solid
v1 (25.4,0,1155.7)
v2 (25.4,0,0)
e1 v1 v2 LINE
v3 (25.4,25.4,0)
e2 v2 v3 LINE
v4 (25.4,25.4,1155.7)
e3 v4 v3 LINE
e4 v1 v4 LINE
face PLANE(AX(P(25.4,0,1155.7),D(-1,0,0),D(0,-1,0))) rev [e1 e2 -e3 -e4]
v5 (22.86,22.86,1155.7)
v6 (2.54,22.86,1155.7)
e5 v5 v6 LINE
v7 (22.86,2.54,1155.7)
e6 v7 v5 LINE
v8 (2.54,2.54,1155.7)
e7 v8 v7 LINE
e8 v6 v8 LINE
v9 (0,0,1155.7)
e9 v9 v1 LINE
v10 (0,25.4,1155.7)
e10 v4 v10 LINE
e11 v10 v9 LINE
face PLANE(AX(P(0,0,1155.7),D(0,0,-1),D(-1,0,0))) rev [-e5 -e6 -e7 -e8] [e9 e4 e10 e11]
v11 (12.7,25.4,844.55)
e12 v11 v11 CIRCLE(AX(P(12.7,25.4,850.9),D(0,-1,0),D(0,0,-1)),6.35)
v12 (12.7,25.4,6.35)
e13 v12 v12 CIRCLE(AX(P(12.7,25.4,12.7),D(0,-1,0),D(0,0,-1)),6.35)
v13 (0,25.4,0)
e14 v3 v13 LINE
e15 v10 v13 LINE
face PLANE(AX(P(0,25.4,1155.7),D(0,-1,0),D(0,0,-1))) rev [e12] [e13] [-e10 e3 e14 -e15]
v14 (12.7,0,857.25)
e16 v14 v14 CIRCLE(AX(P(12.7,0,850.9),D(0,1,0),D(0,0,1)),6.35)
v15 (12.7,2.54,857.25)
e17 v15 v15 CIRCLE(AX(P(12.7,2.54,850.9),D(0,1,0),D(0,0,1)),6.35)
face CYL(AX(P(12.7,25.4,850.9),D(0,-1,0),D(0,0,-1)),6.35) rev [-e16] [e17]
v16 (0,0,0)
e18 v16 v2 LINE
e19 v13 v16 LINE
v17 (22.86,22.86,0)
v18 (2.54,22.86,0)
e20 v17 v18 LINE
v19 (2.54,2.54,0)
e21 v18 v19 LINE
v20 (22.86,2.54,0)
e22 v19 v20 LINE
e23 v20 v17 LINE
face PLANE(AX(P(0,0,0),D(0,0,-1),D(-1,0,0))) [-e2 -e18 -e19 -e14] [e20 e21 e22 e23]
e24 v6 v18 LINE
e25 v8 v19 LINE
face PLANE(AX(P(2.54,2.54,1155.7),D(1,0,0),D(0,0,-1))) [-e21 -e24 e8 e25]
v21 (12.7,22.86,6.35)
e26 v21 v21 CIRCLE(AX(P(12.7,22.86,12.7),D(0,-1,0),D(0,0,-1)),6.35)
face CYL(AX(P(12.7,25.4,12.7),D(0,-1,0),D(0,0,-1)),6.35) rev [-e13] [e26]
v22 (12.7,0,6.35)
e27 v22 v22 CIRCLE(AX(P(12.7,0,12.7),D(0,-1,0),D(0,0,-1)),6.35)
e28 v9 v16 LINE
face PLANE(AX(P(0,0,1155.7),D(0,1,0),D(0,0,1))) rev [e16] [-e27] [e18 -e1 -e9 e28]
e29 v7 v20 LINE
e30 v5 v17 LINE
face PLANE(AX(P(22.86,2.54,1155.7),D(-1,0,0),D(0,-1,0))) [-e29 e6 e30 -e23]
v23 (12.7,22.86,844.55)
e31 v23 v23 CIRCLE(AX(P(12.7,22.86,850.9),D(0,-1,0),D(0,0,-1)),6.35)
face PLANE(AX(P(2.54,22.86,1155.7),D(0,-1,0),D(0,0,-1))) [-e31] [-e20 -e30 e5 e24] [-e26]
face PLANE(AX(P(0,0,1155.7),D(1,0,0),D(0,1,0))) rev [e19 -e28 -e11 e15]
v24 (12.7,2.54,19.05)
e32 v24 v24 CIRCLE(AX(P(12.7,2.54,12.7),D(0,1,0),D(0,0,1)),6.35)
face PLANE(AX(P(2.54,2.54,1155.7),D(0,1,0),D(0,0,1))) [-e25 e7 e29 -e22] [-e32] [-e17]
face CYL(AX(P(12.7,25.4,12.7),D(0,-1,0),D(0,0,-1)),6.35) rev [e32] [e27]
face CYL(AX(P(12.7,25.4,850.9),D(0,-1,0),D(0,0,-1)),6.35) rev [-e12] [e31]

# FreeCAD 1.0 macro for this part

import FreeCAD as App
import Part
import Sketcher
Q = App.Units.Quantity

doc = App.newDocument("Part")
params = doc.addObject("Spreadsheet::Sheet", "Params")
for row, (alias, value) in enumerate([
    ("sketch1_width", "1 in"),
    ("sketch1_width2", "0.8 in"),
    ("pad1_length", "45.5 in"),
    ("sketch2_diameter", "0.5 in"),
    ("sketch3_diameter", "0.5 in"),
], start=1):
    params.set(f"A{row}", alias)
    params.set(f"B{row}", "=" + value)
    params.setAlias(f"B{row}", alias)

body = doc.addObject("PartDesign::Body", "Body")

# Sketch on XY plane
sketch1 = body.newObject("Sketcher::SketchObject", "Sketch")
sketch1.AttachmentSupport = (doc.getObject("XY_Plane"), [""])
sketch1.MapMode = "FlatFace"
sketch1.addGeometry(Part.LineSegment(App.Vector(0, 25, 0), App.Vector(0, 0, 0)), False)
sketch1.addGeometry(Part.LineSegment(App.Vector(0, 0, 0), App.Vector(25, 0, 0)), False)
sketch1.addGeometry(Part.LineSegment(App.Vector(25, 0, 0), App.Vector(25, 25, 0)), False)
sketch1.addGeometry(Part.LineSegment(App.Vector(25, 25, 0), App.Vector(0, 25, 0)), False)
sketch1.addGeometry(Part.LineSegment(App.Vector(23, 3, 0), App.Vector(3, 3, 0)), False)
sketch1.addGeometry(Part.LineSegment(App.Vector(3, 3, 0), App.Vector(3, 23, 0)), False)
sketch1.addGeometry(Part.LineSegment(App.Vector(3, 23, 0), App.Vector(23, 23, 0)), False)
sketch1.addGeometry(Part.LineSegment(App.Vector(23, 23, 0), App.Vector(23, 3, 0)), False)
sketch1.addConstraint(Sketcher.Constraint("Coincident", 0, 2, 1, 1))
sketch1.addConstraint(Sketcher.Constraint("Coincident", 1, 2, 2, 1))
sketch1.addConstraint(Sketcher.Constraint("Coincident", 2, 2, 3, 1))
sketch1.addConstraint(Sketcher.Constraint("Coincident", 3, 2, 0, 1))
sketch1.addConstraint(Sketcher.Constraint("Coincident", 4, 2, 5, 1))
sketch1.addConstraint(Sketcher.Constraint("Coincident", 5, 2, 6, 1))
sketch1.addConstraint(Sketcher.Constraint("Coincident", 6, 2, 7, 1))
sketch1.addConstraint(Sketcher.Constraint("Coincident", 7, 2, 4, 1))
sketch1.addConstraint(Sketcher.Constraint("Vertical", 0))
sketch1.addConstraint(Sketcher.Constraint("Horizontal", 1))
sketch1.addConstraint(Sketcher.Constraint("Vertical", 2))
sketch1.addConstraint(Sketcher.Constraint("Horizontal", 3))
sketch1.addConstraint(Sketcher.Constraint("Horizontal", 4))
sketch1.addConstraint(Sketcher.Constraint("Vertical", 5))
sketch1.addConstraint(Sketcher.Constraint("Horizontal", 6))
sketch1.addConstraint(Sketcher.Constraint("Vertical", 7))
sketch1.addConstraint(Sketcher.Constraint("Coincident", 0, 2, -1, 1))
sketch1.addConstraint(Sketcher.Constraint("Equal", 3, 0))
sketch1.addConstraint(Sketcher.Constraint("Equal", 6, 5))
sketch1.addConstraint(Sketcher.Constraint("DistanceX", 1, 1, 1, 2, Q("1 in")))
sketch1.addConstraint(Sketcher.Constraint("DistanceX", 4, 2, 4, 1, Q("0.8 in")))
sketch1.addConstraint(Sketcher.Constraint("DistanceX", -1, 1, 4, 2, Q("0.1 in")))
sketch1.addConstraint(Sketcher.Constraint("DistanceY", -1, 1, 4, 2, Q("0.1 in")))
sketch1.setExpression("Constraints[19]", "Params.sketch1_width")
sketch1.setExpression("Constraints[20]", "Params.sketch1_width2")
pad1 = body.newObject("PartDesign::Pad", "Pad")
pad1.Profile = sketch1
pad1.setExpression("Length", "Params.pad1_length")

# Sketch on XZ plane
sketch2 = body.newObject("Sketcher::SketchObject", "Sketch001")
sketch2.AttachmentSupport = (doc.getObject("XZ_Plane"), [""])
sketch2.MapMode = "FlatFace"
sketch2.addGeometry(Part.Circle(App.Vector(13, 13, 0), App.Vector(0, 0, 1), 6), False)
sketch2.addConstraint(Sketcher.Constraint("Diameter", 0, Q("0.5 in")))
sketch2.addConstraint(Sketcher.Constraint("DistanceX", -1, 1, 0, 3, Q("0.5 in")))
sketch2.addConstraint(Sketcher.Constraint("DistanceY", -1, 1, 0, 3, Q("0.5 in")))
sketch2.setExpression("Constraints[0]", "Params.sketch2_diameter")
pocket1 = body.newObject("PartDesign::Pocket", "Pocket")
pocket1.Profile = sketch2
pocket1.Type = "ThroughAll"

# Sketch on XZ plane
sketch3 = body.newObject("Sketcher::SketchObject", "Sketch002")
sketch3.AttachmentSupport = (doc.getObject("XZ_Plane"), [""])
sketch3.MapMode = "FlatFace"
sketch3.addGeometry(Part.Circle(App.Vector(13, 851, 0), App.Vector(0, 0, 1), 6), False)
sketch3.addConstraint(Sketcher.Constraint("Diameter", 0, Q("0.5 in")))
sketch3.addConstraint(Sketcher.Constraint("DistanceX", -1, 1, 0, 3, Q("0.5 in")))
sketch3.addConstraint(Sketcher.Constraint("DistanceY", -1, 1, 0, 3, Q("33.5 in")))
sketch3.setExpression("Constraints[0]", "Params.sketch3_diameter")
pocket2 = body.newObject("PartDesign::Pocket", "Pocket001")
pocket2.Profile = sketch3
pocket2.Type = "ThroughAll"
pocket2.Midplane = True

doc.recompute()
